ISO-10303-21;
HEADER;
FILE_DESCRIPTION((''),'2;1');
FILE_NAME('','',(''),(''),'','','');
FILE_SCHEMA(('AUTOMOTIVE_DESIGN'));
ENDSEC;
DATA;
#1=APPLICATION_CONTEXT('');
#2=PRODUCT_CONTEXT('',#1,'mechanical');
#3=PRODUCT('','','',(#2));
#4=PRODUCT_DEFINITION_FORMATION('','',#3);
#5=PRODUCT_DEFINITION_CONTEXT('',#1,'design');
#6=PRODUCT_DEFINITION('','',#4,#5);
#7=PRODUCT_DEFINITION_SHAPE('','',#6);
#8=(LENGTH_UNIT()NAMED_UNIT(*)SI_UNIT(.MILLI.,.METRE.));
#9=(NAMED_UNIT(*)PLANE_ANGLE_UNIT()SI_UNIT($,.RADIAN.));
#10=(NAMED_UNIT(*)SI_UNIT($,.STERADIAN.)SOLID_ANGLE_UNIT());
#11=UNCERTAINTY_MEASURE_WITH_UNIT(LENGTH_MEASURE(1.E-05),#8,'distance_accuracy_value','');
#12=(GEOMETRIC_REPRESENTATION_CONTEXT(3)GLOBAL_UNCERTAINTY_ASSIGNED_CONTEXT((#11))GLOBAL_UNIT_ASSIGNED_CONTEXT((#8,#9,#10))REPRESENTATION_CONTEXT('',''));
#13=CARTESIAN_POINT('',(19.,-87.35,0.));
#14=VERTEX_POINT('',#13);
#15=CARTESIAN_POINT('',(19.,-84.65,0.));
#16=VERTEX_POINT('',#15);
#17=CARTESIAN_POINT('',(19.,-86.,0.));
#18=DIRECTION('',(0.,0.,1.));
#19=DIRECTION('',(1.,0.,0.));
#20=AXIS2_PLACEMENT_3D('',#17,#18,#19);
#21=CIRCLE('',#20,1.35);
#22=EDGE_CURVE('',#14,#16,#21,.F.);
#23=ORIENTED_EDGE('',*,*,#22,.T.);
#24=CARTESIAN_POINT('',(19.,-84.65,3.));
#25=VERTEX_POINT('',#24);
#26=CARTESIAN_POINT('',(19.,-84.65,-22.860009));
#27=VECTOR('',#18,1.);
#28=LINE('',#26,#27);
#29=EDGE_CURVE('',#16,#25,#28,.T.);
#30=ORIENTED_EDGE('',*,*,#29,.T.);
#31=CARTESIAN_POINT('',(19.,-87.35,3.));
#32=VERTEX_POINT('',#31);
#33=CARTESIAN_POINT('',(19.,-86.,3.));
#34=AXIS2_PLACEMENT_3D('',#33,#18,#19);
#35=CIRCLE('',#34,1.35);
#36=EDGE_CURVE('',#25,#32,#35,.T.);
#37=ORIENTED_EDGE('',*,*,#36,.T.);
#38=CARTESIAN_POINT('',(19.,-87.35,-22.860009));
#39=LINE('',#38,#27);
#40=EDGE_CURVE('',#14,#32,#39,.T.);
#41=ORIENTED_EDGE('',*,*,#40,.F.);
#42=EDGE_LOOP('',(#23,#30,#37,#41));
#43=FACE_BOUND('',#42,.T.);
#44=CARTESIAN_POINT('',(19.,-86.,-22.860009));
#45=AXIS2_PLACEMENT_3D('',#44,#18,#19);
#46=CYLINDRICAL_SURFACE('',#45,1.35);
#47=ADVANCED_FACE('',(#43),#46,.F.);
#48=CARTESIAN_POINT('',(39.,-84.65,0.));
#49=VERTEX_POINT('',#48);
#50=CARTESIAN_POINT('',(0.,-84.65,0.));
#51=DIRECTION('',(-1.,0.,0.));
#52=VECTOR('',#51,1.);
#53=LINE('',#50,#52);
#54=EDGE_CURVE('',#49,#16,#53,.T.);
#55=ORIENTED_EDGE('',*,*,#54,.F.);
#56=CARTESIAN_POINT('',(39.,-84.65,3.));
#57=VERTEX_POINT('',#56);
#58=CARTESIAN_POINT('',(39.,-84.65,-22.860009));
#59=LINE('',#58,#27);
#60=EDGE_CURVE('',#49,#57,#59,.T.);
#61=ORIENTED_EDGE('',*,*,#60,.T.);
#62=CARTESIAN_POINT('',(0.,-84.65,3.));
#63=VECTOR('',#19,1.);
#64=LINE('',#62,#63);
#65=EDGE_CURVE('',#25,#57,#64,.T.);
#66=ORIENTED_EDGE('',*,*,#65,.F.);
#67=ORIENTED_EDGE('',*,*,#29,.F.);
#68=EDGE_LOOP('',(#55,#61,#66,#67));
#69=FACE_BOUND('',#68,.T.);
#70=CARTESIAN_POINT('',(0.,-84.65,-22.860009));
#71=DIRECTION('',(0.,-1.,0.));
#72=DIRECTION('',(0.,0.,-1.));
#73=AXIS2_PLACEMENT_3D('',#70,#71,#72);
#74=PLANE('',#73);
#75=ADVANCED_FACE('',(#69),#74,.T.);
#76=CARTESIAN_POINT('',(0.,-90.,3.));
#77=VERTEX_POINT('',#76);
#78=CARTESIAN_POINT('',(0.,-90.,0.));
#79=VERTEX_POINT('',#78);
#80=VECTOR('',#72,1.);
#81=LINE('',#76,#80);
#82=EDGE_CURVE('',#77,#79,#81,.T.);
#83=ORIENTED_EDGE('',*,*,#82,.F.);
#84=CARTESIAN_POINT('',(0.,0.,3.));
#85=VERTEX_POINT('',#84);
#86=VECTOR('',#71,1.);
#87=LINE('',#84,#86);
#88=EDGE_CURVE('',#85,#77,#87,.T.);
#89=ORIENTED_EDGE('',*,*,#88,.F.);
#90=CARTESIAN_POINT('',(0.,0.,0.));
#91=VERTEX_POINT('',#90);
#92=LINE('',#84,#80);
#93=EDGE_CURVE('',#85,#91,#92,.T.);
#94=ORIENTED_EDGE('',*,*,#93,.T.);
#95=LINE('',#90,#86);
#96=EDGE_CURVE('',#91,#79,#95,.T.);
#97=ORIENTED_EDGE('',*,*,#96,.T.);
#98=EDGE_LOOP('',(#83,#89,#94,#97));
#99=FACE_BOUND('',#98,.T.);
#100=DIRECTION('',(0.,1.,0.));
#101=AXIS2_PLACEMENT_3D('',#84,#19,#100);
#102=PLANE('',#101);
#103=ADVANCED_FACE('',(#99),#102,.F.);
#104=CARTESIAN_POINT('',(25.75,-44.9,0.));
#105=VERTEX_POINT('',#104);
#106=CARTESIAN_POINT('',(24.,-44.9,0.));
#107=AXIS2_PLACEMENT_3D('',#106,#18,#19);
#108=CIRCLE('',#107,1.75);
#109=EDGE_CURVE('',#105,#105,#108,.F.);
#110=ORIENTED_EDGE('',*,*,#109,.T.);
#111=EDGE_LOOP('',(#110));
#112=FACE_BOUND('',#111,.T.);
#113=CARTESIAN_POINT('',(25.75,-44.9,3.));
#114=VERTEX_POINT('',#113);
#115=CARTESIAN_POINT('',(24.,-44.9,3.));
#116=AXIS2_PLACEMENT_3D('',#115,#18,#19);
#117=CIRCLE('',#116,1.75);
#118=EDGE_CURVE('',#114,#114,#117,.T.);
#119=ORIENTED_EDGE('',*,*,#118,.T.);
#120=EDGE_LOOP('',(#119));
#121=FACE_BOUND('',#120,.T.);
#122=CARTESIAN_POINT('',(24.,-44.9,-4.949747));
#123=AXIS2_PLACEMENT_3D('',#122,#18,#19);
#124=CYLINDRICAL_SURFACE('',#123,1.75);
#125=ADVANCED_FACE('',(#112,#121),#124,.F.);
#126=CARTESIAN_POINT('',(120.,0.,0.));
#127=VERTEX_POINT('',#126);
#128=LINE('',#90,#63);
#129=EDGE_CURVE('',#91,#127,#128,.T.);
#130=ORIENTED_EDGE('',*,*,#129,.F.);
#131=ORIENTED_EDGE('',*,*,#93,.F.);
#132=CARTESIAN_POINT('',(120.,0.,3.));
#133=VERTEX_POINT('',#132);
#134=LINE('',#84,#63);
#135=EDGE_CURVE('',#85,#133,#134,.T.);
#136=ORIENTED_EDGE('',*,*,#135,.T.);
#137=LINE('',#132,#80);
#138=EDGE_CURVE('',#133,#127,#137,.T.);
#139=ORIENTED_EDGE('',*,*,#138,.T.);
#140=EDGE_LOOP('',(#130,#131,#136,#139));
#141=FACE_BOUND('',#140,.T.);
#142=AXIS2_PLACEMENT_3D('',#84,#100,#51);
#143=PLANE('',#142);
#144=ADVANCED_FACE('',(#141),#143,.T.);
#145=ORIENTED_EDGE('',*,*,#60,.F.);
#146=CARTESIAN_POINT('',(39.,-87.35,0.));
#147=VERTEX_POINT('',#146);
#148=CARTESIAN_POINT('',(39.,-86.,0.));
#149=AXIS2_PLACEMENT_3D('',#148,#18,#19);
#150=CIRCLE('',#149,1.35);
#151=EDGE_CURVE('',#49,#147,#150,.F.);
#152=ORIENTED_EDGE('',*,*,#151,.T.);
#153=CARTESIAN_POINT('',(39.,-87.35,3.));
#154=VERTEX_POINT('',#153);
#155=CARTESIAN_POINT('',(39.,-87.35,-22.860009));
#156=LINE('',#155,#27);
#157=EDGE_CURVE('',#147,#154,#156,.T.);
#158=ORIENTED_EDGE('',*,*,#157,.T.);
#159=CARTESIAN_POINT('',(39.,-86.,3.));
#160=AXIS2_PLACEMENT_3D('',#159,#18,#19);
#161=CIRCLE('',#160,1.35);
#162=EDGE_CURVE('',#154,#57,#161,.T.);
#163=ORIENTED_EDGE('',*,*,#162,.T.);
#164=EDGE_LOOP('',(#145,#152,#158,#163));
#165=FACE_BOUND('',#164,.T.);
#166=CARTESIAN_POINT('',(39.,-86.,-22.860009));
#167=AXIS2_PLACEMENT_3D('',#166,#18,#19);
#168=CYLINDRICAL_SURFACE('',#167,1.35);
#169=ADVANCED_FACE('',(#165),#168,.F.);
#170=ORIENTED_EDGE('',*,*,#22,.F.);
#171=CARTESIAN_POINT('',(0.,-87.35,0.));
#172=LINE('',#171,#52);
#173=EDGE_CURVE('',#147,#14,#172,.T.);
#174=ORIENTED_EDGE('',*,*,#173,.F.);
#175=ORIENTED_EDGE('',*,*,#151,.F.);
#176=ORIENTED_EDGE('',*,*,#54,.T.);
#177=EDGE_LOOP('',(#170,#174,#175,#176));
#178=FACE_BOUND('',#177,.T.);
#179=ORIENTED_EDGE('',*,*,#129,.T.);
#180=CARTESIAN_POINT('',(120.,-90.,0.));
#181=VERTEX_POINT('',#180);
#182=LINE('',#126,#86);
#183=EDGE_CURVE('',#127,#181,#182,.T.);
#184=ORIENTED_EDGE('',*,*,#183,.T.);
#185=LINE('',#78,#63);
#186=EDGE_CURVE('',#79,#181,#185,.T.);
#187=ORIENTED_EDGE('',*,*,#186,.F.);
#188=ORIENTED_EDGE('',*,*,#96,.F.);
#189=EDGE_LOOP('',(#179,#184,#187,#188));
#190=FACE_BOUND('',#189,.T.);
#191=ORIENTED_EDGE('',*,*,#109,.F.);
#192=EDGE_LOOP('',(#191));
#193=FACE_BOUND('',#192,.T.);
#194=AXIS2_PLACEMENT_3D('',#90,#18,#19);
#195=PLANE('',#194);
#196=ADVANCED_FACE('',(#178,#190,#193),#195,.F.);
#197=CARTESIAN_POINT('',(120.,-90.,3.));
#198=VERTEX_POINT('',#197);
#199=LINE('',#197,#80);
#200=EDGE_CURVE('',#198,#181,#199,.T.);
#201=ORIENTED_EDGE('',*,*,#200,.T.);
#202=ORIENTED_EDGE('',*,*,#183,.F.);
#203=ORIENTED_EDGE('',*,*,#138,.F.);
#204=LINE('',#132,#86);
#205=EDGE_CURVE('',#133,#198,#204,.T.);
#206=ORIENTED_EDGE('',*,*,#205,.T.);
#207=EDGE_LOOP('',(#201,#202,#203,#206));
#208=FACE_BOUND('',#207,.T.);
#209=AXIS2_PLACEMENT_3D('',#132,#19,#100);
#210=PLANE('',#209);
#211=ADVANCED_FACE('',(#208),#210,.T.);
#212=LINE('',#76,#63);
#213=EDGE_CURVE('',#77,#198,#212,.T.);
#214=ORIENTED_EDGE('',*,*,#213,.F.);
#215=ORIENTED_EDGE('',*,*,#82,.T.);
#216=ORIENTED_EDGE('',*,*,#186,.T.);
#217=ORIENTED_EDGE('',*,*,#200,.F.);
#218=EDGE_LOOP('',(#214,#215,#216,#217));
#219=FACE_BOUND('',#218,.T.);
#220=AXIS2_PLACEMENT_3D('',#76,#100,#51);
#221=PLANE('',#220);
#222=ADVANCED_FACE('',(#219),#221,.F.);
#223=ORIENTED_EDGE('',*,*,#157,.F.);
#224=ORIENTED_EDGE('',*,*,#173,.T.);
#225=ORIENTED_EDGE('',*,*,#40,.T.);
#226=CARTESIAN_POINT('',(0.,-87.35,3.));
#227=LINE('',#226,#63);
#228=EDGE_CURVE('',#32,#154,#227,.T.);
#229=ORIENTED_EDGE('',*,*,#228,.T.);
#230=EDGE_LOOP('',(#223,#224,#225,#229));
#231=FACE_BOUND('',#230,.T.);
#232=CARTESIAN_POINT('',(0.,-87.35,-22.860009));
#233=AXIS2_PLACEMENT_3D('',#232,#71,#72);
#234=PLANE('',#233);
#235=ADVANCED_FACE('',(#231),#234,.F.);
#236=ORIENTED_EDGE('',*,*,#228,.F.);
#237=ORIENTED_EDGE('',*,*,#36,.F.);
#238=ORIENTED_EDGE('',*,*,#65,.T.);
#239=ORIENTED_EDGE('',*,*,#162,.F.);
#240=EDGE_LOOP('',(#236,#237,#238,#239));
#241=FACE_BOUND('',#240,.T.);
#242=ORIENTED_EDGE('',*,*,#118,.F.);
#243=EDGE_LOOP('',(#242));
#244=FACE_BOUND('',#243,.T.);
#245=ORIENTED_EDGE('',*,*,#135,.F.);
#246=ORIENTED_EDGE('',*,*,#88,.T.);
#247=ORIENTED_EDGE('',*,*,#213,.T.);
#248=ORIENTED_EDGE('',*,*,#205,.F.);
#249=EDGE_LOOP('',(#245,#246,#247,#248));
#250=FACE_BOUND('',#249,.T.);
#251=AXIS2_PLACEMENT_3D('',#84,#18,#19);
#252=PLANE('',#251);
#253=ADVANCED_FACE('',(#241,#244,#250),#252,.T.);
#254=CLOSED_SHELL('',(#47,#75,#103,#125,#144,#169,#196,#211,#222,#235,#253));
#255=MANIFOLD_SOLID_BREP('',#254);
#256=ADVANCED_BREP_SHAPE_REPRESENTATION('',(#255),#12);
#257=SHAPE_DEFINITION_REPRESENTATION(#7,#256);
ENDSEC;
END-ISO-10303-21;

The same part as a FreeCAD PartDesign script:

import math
import FreeCAD as App
import Part
import Sketcher
from FreeCAD import Vector

doc = App.newDocument("Part")
body = doc.addObject("PartDesign::Body", "Body")

sketch1 = body.newObject("Sketcher::SketchObject", "Sketch")
sketch1.AttachmentSupport = (doc.getObject("XY_Plane"), [""])
sketch1.MapMode = "FlatFace"
sketch1.addGeometry([
    Part.LineSegment(Vector(0, 0, 0), Vector(0, -90, 0)),
    Part.LineSegment(Vector(0, -90, 0), Vector(120, -90, 0)),
    Part.LineSegment(Vector(120, -90, 0), Vector(120, 0, 0)),
    Part.LineSegment(Vector(120, 0, 0), Vector(0, 0, 0)),
], False)
sketch1.addConstraint([
    Sketcher.Constraint("Coincident", 0, 2, 1, 1),
    Sketcher.Constraint("Coincident", 1, 2, 2, 1),
    Sketcher.Constraint("Coincident", 2, 2, 3, 1),
    Sketcher.Constraint("Coincident", 3, 2, 0, 1),
    Sketcher.Constraint("Vertical", 0),
    Sketcher.Constraint("Horizontal", 1),
    Sketcher.Constraint("Vertical", 2),
    Sketcher.Constraint("Horizontal", 3),
    Sketcher.Constraint("Coincident", 3, 2, -1, 1),
    Sketcher.Constraint("DistanceX", 1, 1, 1, 2, 120.0),
    Sketcher.Constraint("DistanceY", 0, 2, 0, 1, 90.0),
])
pad1 = body.newObject("PartDesign::Pad", "Pad")
pad1.Profile = sketch1
pad1.Length = 3

sketch2 = body.newObject("Sketcher::SketchObject", "Sketch001")
sketch2.AttachmentSupport = (doc.getObject("XY_Plane"), [""])
sketch2.MapMode = "FlatFace"
sketch2.AttachmentOffset = App.Placement(Vector(0, 0, 3), App.Rotation())
sketch2.addGeometry(Part.Circle(Vector(24, -44.9, 0), Vector(0, 0, 1), 1.8), False)
sketch2.addConstraint([
    Sketcher.Constraint("Diameter", 0, 3.5),
    Sketcher.Constraint("DistanceX", -1, 1, 0, 3, 24.0),
    Sketcher.Constraint("DistanceY", 0, 3, -1, 1, 44.9),
])
pocket1 = body.newObject("PartDesign::Pocket", "Pocket")
pocket1.Profile = sketch2
pocket1.Length = 3

sketch3 = body.newObject("Sketcher::SketchObject", "Sketch002")
sketch3.AttachmentSupport = (doc.getObject("XY_Plane"), [""])
sketch3.MapMode = "FlatFace"
sketch3.AttachmentOffset = App.Placement(Vector(0, 0, 3), App.Rotation())
sketch3.addGeometry([
    Part.LineSegment(Vector(39, -84.7, 0), Vector(19, -84.7, 0)),
    Part.ArcOfCircle(Part.Circle(Vector(19, -86, 0), Vector(0, 0, 1), 1.4), math.radians(90), math.radians(270)),
    Part.LineSegment(Vector(19, -87.3, 0), Vector(39, -87.3, 0)),
    Part.ArcOfCircle(Part.Circle(Vector(39, -86, 0), Vector(0, 0, 1), 1.4), math.radians(-90), math.radians(90)),
], False)
sketch3.addConstraint([
    Sketcher.Constraint("Tangent", 0, 2, 1, 1),
    Sketcher.Constraint("Tangent", 1, 2, 2, 1),
    Sketcher.Constraint("Tangent", 2, 2, 3, 1),
    Sketcher.Constraint("Tangent", 3, 2, 0, 1),
    Sketcher.Constraint("Horizontal", 0),
    Sketcher.Constraint("Horizontal", 2),
    Sketcher.Constraint("DistanceX", 0, 2, 0, 1, 20.0),
    Sketcher.Constraint("Radius", 1, 1.35),
    Sketcher.Constraint("DistanceX", -1, 1, 1, 3, 19.0),
    Sketcher.Constraint("DistanceY", 1, 3, -1, 1, 86.0),
])
pocket2 = body.newObject("PartDesign::Pocket", "Pocket001")
pocket2.Profile = sketch3
pocket2.Length = 3

doc.recompute()
